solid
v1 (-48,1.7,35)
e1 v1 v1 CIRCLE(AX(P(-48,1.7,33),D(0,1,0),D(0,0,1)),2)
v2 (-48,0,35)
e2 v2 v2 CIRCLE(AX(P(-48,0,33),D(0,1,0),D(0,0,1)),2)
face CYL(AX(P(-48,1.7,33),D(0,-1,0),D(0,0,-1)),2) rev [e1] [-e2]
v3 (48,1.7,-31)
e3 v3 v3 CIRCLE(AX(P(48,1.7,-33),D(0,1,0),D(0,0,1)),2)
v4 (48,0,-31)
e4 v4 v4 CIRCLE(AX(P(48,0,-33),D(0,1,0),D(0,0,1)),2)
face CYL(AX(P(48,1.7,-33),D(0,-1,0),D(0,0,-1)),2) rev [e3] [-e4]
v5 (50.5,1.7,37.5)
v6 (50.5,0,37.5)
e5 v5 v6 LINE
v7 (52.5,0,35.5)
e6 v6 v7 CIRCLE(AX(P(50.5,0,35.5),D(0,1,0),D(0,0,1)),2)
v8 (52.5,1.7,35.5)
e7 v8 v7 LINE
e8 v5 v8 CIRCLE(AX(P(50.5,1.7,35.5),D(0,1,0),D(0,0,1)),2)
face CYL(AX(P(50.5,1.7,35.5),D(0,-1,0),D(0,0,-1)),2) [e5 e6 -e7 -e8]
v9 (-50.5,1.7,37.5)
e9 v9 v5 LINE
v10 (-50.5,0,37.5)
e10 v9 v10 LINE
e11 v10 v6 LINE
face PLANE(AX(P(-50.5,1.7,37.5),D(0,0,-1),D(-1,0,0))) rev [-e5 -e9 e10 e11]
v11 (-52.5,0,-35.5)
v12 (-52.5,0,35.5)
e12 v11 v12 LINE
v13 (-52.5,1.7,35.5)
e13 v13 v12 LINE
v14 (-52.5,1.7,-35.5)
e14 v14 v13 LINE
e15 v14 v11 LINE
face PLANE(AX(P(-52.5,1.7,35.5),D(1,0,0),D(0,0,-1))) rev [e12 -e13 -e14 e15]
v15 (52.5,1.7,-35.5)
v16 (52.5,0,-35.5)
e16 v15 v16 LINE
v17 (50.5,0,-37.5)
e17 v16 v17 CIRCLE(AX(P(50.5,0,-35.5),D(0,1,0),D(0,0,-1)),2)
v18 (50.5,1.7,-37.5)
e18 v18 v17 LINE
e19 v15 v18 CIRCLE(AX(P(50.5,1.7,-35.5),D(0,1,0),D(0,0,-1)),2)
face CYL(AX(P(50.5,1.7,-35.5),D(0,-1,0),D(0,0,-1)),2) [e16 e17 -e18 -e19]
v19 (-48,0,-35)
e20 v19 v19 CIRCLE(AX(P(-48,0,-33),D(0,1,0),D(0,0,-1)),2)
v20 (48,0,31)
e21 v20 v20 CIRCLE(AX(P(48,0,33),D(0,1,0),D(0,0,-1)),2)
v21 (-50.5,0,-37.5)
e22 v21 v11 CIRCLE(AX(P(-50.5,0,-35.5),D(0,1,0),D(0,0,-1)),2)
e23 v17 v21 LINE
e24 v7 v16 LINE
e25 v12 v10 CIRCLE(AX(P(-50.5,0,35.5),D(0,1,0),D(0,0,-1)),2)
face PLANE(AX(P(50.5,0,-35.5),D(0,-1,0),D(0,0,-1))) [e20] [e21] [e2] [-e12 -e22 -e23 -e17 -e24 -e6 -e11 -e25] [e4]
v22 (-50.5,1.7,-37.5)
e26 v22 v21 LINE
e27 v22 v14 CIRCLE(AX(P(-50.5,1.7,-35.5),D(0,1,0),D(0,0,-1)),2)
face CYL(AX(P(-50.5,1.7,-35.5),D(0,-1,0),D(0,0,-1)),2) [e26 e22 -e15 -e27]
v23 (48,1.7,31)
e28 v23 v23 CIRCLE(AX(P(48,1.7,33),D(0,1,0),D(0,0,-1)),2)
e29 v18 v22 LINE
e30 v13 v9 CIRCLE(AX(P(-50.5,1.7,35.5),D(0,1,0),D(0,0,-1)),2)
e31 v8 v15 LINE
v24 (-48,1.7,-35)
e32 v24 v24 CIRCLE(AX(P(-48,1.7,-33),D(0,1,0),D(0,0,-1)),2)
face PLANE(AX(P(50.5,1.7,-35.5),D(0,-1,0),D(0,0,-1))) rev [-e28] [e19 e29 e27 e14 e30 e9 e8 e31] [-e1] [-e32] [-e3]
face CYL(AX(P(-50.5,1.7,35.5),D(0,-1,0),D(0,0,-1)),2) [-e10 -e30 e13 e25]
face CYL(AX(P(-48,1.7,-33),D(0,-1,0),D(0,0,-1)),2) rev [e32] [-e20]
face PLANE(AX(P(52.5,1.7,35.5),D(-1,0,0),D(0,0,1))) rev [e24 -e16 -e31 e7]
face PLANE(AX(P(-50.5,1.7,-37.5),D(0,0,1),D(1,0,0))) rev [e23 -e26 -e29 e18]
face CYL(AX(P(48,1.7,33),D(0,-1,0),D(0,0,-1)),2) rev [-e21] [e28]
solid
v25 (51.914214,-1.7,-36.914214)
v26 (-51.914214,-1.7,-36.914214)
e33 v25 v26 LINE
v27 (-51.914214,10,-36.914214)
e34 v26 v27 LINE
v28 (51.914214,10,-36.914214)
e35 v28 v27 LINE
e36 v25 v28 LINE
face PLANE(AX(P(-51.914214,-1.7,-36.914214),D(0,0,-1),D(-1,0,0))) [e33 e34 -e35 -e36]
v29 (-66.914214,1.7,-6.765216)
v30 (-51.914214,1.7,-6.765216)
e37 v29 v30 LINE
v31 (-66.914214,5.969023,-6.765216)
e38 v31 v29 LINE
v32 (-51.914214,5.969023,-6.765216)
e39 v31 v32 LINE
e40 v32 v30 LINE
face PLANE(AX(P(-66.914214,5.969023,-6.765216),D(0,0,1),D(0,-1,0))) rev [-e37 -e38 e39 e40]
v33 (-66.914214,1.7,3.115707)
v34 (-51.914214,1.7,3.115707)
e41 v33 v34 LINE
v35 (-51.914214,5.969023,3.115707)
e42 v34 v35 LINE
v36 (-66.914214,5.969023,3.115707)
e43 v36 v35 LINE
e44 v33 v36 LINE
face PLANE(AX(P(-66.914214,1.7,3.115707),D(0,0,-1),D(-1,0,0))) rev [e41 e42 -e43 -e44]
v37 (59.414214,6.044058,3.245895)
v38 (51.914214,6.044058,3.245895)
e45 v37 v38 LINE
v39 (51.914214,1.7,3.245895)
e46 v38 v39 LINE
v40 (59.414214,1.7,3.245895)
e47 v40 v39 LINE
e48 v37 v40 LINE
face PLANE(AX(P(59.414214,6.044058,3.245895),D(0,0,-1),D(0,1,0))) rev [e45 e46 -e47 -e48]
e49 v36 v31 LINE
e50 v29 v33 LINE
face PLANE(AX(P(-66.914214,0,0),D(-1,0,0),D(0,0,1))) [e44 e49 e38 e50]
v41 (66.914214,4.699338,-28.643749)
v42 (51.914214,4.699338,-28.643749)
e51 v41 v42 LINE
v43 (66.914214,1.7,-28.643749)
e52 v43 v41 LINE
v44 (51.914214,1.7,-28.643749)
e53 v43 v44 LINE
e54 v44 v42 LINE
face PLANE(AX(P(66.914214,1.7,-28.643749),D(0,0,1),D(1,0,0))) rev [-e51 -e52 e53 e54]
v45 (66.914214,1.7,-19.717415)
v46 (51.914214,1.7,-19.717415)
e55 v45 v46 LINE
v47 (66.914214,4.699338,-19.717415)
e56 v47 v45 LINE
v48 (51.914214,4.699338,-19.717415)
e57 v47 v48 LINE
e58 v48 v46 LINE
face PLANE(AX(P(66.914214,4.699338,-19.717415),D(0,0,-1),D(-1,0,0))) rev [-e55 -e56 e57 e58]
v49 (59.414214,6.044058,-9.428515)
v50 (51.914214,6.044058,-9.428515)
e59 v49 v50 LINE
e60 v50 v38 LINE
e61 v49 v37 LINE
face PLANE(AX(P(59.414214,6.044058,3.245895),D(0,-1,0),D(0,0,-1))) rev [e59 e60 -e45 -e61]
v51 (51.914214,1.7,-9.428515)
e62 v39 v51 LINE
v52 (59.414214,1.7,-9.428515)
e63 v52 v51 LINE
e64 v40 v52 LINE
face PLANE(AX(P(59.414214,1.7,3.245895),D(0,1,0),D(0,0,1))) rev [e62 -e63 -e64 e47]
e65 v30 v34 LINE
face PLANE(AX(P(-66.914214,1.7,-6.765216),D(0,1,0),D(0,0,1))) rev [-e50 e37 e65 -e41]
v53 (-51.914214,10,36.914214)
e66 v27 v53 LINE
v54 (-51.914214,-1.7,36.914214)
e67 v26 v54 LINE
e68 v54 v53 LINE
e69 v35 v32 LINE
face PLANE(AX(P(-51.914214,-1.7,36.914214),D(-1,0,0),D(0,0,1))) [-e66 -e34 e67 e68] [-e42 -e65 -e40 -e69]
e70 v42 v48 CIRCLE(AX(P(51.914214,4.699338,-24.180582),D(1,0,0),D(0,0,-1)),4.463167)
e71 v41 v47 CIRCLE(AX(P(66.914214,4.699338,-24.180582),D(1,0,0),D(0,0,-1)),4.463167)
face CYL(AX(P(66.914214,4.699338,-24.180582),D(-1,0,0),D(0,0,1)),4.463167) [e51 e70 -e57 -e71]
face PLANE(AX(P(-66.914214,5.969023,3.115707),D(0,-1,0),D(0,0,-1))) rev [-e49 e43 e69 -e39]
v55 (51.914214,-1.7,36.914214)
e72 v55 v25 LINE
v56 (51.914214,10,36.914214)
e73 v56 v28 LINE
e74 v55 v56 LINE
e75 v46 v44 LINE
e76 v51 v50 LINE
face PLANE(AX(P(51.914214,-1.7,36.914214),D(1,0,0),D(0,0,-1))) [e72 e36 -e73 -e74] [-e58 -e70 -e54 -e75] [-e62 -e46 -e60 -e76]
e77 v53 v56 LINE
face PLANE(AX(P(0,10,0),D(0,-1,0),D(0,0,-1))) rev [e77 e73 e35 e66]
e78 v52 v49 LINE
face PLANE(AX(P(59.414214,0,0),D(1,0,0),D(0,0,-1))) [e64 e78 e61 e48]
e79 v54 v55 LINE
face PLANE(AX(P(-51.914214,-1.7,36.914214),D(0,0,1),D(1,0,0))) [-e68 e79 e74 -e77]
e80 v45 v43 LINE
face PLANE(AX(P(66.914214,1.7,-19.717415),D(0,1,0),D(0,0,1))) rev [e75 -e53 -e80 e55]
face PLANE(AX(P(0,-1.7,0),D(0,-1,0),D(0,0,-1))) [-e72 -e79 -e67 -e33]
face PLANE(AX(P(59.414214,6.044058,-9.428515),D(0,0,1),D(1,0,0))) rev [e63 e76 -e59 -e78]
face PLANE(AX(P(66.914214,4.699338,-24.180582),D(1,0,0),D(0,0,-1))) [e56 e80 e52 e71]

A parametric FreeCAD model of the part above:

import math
import FreeCAD as App
import Part
import Sketcher

V = App.Vector


def add_polygon(sketch, points):
    """Adds a closed chain of lines whose ends are joined by coincident constraints."""
    first, n = sketch.GeometryCount, len(points)
    for a, b in zip(points, points[1:] + points[:1]):
        sketch.addGeometry(Part.LineSegment(App.Vector(*a, 0), App.Vector(*b, 0)), False)
    for i in range(n):
        sketch.addConstraint(Sketcher.Constraint("Coincident", first + i, 2, first + (i + 1) % n, 1))

doc = App.newDocument("Part")
body = doc.addObject("PartDesign::Body", "Body")

# Sketch on XZ plane
sketch1 = body.newObject("Sketcher::SketchObject", "Sketch")
sketch1.AttachmentSupport = (doc.getObject("XZ_Plane"), [""])
sketch1.MapMode = "FlatFace"
sketch1.addGeometry(Part.LineSegment(V(-50.5, 37.5, 0), V(50.5, 37.5, 0)), False)
sketch1.addGeometry(Part.ArcOfCircle(Part.Circle(V(50.5, 35.5, 0), V(0, 0, 1), 2), math.radians(0), math.radians(90)), False)
sketch1.addGeometry(Part.LineSegment(V(52.5, 35.5, 0), V(52.5, -35.5, 0)), False)
sketch1.addGeometry(Part.ArcOfCircle(Part.Circle(V(50.5, -35.5, 0), V(0, 0, 1), 2), math.radians(-90), math.radians(0)), False)
sketch1.addGeometry(Part.LineSegment(V(50.5, -37.5, 0), V(-50.5, -37.5, 0)), False)
sketch1.addGeometry(Part.ArcOfCircle(Part.Circle(V(-50.5, -35.5, 0), V(0, 0, 1), 2), math.radians(-180), math.radians(-90)), False)
sketch1.addGeometry(Part.LineSegment(V(-52.5, -35.5, 0), V(-52.5, 35.5, 0)), False)
sketch1.addGeometry(Part.ArcOfCircle(Part.Circle(V(-50.5, 35.5, 0), V(0, 0, 1), 2), math.radians(90), math.radians(180)), False)
sketch1.addConstraint(Sketcher.Constraint("Tangent", 0, 2, 1, 2))
sketch1.addConstraint(Sketcher.Constraint("Tangent", 1, 1, 2, 1))
sketch1.addConstraint(Sketcher.Constraint("Tangent", 2, 2, 3, 2))
sketch1.addConstraint(Sketcher.Constraint("Tangent", 3, 1, 4, 1))
sketch1.addConstraint(Sketcher.Constraint("Tangent", 4, 2, 5, 2))
sketch1.addConstraint(Sketcher.Constraint("Tangent", 5, 1, 6, 1))
sketch1.addConstraint(Sketcher.Constraint("Tangent", 6, 2, 7, 2))
sketch1.addConstraint(Sketcher.Constraint("Tangent", 7, 1, 0, 1))
sketch1.addConstraint(Sketcher.Constraint("Horizontal", 0))
sketch1.addConstraint(Sketcher.Constraint("Vertical", 2))
sketch1.addConstraint(Sketcher.Constraint("Horizontal", 4))
sketch1.addConstraint(Sketcher.Constraint("Vertical", 6))
sketch1.addConstraint(Sketcher.Constraint("Equal", 1, 3))
sketch1.addConstraint(Sketcher.Constraint("Equal", 3, 5))
sketch1.addConstraint(Sketcher.Constraint("Equal", 5, 7))
sketch1.addConstraint(Sketcher.Constraint("Symmetric", 1, 3, 5, 3, -1, 1))
sketch1.addConstraint(Sketcher.Constraint("Radius", 1, 2.0))
sketch1.addConstraint(Sketcher.Constraint("DistanceX", 0, 1, 0, 2, 101.0))
sketch1.addConstraint(Sketcher.Constraint("DistanceY", 2, 2, 2, 1, 71.0))
pad1 = body.newObject("PartDesign::Pad", "Pad")
pad1.Profile = sketch1
pad1.Length = 1.7
pad1.Reversed = True

# Sketch on XZ plane
sketch2 = body.newObject("Sketcher::SketchObject", "Sketch001")
sketch2.AttachmentSupport = (doc.getObject("XZ_Plane"), [""])
sketch2.MapMode = "FlatFace"
sketch2.addGeometry(Part.Circle(V(48, -33, 0), V(0, 0, 1), 2), False)
sketch2.addGeometry(Part.Circle(V(48, 33, 0), V(0, 0, 1), 2), False)
sketch2.addGeometry(Part.Circle(V(-48, -33, 0), V(0, 0, 1), 2), False)
sketch2.addGeometry(Part.Circle(V(-48, 33, 0), V(0, 0, 1), 2), False)
sketch2.addConstraint(Sketcher.Constraint("Equal", 0, 1))
sketch2.addConstraint(Sketcher.Constraint("Equal", 1, 2))
sketch2.addConstraint(Sketcher.Constraint("Equal", 2, 3))
sketch2.addConstraint(Sketcher.Constraint("Symmetric", 1, 3, 2, 3, -1, 1))
sketch2.addConstraint(Sketcher.Constraint("Symmetric", 0, 3, 3, 3, -1, 1))
sketch2.addConstraint(Sketcher.Constraint("Symmetric", 0, 3, 2, 3, -2))
sketch2.addConstraint(Sketcher.Constraint("Diameter", 0, 4.0))
sketch2.addConstraint(Sketcher.Constraint("DistanceX", -1, 1, 0, 3, 48.0))
sketch2.addConstraint(Sketcher.Constraint("DistanceY", 0, 3, -1, 1, 33.0))
pocket1 = body.newObject("PartDesign::Pocket", "Pocket")
pocket1.Profile = sketch2
pocket1.Type = "ThroughAll"
body2 = doc.addObject("PartDesign::Body", "Body001")

# Sketch on XZ plane
sketch3 = body2.newObject("Sketcher::SketchObject", "Sketch002")
sketch3.AttachmentSupport = (doc.getObject("XZ_Plane001"), [""])
sketch3.MapMode = "FlatFace"
add_polygon(sketch3, [(-52, -37), (-52, 37), (52, 37), (52, -37)])  # lines 0-3
sketch3.addConstraint(Sketcher.Constraint("Vertical", 0))
sketch3.addConstraint(Sketcher.Constraint("Horizontal", 1))
sketch3.addConstraint(Sketcher.Constraint("Vertical", 2))
sketch3.addConstraint(Sketcher.Constraint("Horizontal", 3))
sketch3.addConstraint(Sketcher.Constraint("Symmetric", 0, 2, 2, 2, -1, 1))
sketch3.addConstraint(Sketcher.Constraint("DistanceX", 1, 1, 1, 2, 103.828427))
sketch3.addConstraint(Sketcher.Constraint("DistanceY", 0, 1, 0, 2, 73.828427))
pad2 = body2.newObject("PartDesign::Pad", "Pad001")
pad2.Profile = sketch3
pad2.Type = "TwoLengths"
pad2.Length = 10
pad2.Length2 = 1.7
pad2.Reversed = True

# Sketch on YZ plane
sketch4 = body2.newObject("Sketcher::SketchObject", "Sketch003")
sketch4.AttachmentSupport = (doc.getObject("YZ_Plane001"), [""])
sketch4.MapMode = "FlatFace"
sketch4.AttachmentOffset = App.Placement(V(0, 0, 51.914214), App.Rotation())
add_polygon(sketch4, [(6, 3.2), (1.7, 3.2), (1.7, -9.4), (6, -9.4)])  # lines 0-3
sketch4.addConstraint(Sketcher.Constraint("Horizontal", 0))
sketch4.addConstraint(Sketcher.Constraint("Vertical", 1))
sketch4.addConstraint(Sketcher.Constraint("Horizontal", 2))
sketch4.addConstraint(Sketcher.Constraint("Vertical", 3))
sketch4.addConstraint(Sketcher.Constraint("DistanceX", -1, 1, 0, 2, 1.7))
sketch4.addConstraint(Sketcher.Constraint("DistanceX", 0, 2, 0, 1, 4.344058))
sketch4.addConstraint(Sketcher.Constraint("DistanceY", 1, 2, 1, 1, 12.67441))
sketch4.addConstraint(Sketcher.Constraint("DistanceY", -1, 1, 0, 2, 3.245895))
pad3 = body2.newObject("PartDesign::Pad", "Pad002")
pad3.Profile = sketch4
pad3.Length = 7.5

# Sketch on YZ plane
sketch5 = body2.newObject("Sketcher::SketchObject", "Sketch004")
sketch5.AttachmentSupport = (doc.getObject("YZ_Plane001"), [""])
sketch5.MapMode = "FlatFace"
sketch5.AttachmentOffset = App.Placement(V(0, 0, 51.914214), App.Rotation())
sketch5.addGeometry(Part.LineSegment(V(1.7, -19.7, 0), V(1.7, -28.6, 0)), False)
sketch5.addGeometry(Part.LineSegment(V(1.7, -28.6, 0), V(4.7, -28.6, 0)), False)
sketch5.addGeometry(Part.ArcOfCircle(Part.Circle(V(4.7, -24.2, 0), V(0, 0, 1), 4.5), math.radians(-90), math.radians(90)), False)
sketch5.addGeometry(Part.LineSegment(V(4.7, -19.7, 0), V(1.7, -19.7, 0)), False)
sketch5.addConstraint(Sketcher.Constraint("Coincident", 0, 2, 1, 1))
sketch5.addConstraint(Sketcher.Constraint("Tangent", 1, 2, 2, 1))
sketch5.addConstraint(Sketcher.Constraint("Tangent", 2, 2, 3, 1))
sketch5.addConstraint(Sketcher.Constraint("Coincident", 3, 2, 0, 1))
sketch5.addConstraint(Sketcher.Constraint("Vertical", 0))
sketch5.addConstraint(Sketcher.Constraint("Horizontal", 1))
sketch5.addConstraint(Sketcher.Constraint("Horizontal", 3))
sketch5.addConstraint(Sketcher.Constraint("DistanceX", -1, 1, 0, 2, 1.7))
sketch5.addConstraint(Sketcher.Constraint("Radius", 2, 4.463167))
sketch5.addConstraint(Sketcher.Constraint("DistanceX", 1, 1, 1, 2, 2.999338))
sketch5.addConstraint(Sketcher.Constraint("DistanceY", 0, 2, -1, 1, 28.643749))
pad4 = body2.newObject("PartDesign::Pad", "Pad003")
pad4.Profile = sketch5
pad4.Length = 15

# Sketch on YZ plane
sketch6 = body2.newObject("Sketcher::SketchObject", "Sketch005")
sketch6.AttachmentSupport = (doc.getObject("YZ_Plane001"), [""])
sketch6.MapMode = "FlatFace"
sketch6.AttachmentOffset = App.Placement(V(0, 0, -51.914214), App.Rotation())
add_polygon(sketch6, [(6, -6.8), (1.7, -6.8), (1.7, 3.1), (6, 3.1)])  # lines 0-3
sketch6.addConstraint(Sketcher.Constraint("Horizontal", 0))
sketch6.addConstraint(Sketcher.Constraint("Vertical", 1))
sketch6.addConstraint(Sketcher.Constraint("Horizontal", 2))
sketch6.addConstraint(Sketcher.Constraint("Vertical", 3))
sketch6.addConstraint(Sketcher.Constraint("DistanceX", -1, 1, 0, 2, 1.7))
sketch6.addConstraint(Sketcher.Constraint("DistanceX", 0, 2, 0, 1, 4.269023))
sketch6.addConstraint(Sketcher.Constraint("DistanceY", 1, 1, 1, 2, 9.880923))
sketch6.addConstraint(Sketcher.Constraint("DistanceY", 0, 2, -1, 1, 6.765216))
pad5 = body2.newObject("PartDesign::Pad", "Pad004")
pad5.Profile = sketch6
pad5.Length = 15
pad5.Reversed = True

doc.recompute()
